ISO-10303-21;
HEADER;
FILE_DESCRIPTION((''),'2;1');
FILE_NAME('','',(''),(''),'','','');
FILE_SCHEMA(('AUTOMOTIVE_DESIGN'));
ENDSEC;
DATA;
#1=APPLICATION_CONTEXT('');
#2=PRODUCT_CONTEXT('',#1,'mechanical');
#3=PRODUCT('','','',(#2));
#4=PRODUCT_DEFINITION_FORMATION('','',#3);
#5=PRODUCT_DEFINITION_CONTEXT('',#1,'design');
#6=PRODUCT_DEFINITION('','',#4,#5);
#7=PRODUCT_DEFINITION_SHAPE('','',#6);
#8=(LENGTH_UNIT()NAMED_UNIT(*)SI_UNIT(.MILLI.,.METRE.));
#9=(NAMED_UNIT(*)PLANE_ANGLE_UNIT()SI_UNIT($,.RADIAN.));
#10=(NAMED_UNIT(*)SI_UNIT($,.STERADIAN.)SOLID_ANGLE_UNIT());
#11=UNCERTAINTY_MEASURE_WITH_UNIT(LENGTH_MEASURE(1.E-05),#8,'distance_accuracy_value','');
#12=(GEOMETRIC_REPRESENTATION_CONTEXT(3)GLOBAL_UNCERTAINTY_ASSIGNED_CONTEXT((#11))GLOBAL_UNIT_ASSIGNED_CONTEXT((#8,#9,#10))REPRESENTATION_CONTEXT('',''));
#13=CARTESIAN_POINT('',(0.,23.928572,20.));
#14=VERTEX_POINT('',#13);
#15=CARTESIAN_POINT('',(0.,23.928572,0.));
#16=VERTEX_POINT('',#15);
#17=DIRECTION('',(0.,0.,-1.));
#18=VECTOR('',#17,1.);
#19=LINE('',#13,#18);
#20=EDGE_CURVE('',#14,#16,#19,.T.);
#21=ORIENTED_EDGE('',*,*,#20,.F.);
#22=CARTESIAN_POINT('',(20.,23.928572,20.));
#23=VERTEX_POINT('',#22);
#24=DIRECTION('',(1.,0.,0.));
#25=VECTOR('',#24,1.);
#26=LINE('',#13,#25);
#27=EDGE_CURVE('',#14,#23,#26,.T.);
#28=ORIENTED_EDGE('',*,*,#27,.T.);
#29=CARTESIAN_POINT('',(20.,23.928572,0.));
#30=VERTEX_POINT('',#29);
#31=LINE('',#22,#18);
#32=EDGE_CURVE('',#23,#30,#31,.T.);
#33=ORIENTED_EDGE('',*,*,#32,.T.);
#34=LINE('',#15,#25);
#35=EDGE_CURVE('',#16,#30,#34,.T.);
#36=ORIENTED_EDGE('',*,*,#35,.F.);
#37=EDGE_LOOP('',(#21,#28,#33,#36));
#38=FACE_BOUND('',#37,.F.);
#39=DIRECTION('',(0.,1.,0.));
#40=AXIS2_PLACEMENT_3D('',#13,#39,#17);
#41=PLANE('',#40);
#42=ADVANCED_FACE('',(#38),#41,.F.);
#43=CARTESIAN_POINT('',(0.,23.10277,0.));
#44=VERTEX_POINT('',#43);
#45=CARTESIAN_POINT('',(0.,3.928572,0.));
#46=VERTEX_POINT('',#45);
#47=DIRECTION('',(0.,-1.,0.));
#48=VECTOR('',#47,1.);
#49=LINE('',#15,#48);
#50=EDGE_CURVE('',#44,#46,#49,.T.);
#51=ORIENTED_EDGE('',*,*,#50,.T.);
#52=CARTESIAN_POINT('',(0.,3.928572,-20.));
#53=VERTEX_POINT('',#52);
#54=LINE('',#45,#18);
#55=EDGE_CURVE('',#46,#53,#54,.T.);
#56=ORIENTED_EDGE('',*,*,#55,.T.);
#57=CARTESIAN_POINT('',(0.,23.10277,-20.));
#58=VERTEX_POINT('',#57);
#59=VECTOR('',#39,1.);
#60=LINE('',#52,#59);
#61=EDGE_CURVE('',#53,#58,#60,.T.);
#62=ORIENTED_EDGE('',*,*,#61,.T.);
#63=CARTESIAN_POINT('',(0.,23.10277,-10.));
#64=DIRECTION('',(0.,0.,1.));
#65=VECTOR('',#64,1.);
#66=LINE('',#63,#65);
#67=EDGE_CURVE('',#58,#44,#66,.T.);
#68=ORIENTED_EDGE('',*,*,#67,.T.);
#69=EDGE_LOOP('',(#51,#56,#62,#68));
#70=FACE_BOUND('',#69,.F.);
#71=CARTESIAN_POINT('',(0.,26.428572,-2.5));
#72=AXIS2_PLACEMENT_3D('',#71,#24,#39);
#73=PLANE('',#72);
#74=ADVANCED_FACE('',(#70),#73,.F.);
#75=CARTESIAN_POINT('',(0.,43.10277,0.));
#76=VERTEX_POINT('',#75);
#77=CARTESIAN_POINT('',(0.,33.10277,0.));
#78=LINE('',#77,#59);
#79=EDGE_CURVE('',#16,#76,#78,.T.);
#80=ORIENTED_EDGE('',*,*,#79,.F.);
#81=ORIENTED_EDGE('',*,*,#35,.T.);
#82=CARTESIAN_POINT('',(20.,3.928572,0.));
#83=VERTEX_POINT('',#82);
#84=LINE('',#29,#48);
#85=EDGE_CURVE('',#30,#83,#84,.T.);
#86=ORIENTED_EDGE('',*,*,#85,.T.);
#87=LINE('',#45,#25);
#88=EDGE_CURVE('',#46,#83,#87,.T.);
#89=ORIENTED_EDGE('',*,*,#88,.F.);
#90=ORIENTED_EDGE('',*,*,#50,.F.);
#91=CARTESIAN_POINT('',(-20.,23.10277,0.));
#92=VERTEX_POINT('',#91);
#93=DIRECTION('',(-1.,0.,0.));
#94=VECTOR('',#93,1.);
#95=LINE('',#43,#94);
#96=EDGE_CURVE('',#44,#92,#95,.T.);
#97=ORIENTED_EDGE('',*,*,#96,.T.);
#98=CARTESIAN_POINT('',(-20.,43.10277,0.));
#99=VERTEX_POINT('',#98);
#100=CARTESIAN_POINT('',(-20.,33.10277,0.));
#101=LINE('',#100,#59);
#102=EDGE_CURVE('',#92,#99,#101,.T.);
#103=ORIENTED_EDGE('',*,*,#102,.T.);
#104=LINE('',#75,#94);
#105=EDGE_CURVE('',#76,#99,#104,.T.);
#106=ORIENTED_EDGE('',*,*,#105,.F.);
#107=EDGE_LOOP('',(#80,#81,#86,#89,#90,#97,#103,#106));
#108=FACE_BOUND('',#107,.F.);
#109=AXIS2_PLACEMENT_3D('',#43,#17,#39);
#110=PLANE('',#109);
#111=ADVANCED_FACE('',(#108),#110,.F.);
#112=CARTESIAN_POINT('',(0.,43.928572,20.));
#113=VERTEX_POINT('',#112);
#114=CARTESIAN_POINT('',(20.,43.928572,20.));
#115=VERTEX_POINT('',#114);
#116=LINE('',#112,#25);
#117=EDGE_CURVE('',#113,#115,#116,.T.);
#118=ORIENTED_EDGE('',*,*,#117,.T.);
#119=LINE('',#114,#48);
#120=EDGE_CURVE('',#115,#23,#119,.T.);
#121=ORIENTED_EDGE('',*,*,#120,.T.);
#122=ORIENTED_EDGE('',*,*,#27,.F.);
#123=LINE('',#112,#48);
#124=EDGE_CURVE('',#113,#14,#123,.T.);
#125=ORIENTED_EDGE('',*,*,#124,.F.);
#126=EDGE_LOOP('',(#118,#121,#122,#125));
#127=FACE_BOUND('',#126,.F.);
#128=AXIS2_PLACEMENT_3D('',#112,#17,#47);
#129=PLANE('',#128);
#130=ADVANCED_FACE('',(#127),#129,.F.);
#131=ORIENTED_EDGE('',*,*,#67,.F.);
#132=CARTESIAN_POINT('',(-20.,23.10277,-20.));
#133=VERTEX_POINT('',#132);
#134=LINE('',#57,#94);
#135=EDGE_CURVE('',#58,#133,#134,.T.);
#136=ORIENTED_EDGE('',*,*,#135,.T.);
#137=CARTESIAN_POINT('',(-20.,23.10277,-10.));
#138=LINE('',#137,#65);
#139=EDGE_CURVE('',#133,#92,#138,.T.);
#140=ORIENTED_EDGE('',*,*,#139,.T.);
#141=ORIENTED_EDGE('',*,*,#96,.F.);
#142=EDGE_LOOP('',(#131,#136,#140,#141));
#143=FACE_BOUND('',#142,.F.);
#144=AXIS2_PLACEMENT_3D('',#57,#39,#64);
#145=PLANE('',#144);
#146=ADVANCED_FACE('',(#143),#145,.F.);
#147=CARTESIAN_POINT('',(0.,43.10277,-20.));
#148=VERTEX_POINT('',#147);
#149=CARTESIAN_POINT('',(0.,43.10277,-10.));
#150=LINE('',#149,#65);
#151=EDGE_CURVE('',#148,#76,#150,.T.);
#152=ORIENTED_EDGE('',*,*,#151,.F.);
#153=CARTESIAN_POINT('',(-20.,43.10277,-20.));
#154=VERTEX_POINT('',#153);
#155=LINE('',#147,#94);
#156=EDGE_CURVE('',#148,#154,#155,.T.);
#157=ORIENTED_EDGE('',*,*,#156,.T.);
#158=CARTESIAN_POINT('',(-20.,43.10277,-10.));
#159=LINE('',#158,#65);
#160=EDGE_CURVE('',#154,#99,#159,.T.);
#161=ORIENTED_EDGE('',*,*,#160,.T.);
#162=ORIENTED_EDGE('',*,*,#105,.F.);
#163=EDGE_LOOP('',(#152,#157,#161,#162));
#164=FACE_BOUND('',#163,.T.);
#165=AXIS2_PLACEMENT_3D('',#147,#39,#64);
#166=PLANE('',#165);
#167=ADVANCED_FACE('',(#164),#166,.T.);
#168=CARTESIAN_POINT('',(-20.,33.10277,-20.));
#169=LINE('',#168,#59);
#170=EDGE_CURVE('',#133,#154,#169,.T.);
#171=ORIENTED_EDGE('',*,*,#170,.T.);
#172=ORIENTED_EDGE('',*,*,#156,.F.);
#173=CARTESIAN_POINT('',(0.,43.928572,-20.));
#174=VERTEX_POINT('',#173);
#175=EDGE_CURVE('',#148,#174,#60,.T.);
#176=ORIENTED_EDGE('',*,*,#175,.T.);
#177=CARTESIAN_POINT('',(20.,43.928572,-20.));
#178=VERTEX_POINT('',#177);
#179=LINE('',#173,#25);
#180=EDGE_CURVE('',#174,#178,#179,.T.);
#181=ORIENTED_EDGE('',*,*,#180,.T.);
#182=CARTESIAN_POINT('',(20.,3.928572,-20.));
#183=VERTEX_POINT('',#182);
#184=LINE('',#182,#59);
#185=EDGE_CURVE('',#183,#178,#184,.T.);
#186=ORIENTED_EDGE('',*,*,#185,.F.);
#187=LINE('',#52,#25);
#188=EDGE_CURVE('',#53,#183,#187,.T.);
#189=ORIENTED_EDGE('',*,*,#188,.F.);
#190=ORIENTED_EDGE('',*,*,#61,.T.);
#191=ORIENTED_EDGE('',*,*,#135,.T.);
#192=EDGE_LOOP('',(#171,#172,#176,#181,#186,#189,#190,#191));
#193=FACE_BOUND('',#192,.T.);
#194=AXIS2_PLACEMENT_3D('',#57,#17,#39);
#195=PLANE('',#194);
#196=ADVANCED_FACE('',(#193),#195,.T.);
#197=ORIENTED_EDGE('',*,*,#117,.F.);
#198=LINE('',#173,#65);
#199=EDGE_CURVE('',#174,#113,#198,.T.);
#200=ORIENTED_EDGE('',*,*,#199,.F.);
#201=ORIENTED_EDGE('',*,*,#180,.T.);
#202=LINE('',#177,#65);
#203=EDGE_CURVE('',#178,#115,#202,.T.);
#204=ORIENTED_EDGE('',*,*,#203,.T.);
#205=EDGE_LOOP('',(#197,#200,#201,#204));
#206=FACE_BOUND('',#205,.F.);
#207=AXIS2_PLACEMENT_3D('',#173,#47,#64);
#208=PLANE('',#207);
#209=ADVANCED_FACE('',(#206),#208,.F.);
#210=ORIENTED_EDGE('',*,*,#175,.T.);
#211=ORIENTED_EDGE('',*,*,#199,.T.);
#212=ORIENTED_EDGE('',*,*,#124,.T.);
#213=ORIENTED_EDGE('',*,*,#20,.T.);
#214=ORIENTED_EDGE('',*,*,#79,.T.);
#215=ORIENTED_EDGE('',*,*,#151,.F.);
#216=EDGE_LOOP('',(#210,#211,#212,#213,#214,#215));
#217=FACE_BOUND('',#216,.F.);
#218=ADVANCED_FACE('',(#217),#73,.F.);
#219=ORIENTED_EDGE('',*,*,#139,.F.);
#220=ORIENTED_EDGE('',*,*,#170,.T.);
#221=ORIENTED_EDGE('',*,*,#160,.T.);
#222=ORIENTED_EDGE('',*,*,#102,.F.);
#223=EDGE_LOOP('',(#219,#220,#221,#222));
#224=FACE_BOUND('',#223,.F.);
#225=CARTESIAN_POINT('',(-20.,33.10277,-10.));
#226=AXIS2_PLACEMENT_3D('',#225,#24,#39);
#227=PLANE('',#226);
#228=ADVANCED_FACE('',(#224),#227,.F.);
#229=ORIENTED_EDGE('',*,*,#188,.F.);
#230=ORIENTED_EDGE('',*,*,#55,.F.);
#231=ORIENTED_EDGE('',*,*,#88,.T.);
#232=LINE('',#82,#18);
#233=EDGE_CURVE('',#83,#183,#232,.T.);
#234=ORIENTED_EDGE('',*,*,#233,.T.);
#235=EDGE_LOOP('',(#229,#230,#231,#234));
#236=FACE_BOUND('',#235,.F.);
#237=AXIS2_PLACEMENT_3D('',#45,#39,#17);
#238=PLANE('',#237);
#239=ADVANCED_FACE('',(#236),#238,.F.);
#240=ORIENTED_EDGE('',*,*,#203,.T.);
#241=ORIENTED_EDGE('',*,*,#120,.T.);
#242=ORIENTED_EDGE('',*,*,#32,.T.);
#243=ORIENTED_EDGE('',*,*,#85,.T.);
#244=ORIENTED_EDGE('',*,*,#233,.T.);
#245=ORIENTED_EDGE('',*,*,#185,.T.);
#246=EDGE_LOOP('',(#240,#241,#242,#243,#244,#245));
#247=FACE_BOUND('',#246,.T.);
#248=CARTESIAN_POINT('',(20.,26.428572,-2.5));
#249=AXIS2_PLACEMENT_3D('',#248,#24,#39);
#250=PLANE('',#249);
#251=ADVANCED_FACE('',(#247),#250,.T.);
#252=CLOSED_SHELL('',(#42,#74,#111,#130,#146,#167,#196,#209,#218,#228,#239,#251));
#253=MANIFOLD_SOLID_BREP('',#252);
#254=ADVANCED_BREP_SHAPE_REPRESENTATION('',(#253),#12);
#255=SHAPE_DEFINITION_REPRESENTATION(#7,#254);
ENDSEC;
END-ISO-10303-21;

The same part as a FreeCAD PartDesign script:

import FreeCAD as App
import Part
import Sketcher

V = App.Vector

doc = App.newDocument("Part")
params = doc.addObject("Spreadsheet::Sheet", "Params")
for row, (alias, value) in enumerate([
    ("sketch1_width", "20 mm"),
    ("pad1_length", "20 mm"),
    ("sketch2_width", "20 mm"),
    ("pad2_length", "20 mm"),
], start=1):
    params.set(f"A{row}", alias)
    params.set(f"B{row}", "=" + value)
    params.setAlias(f"B{row}", alias)

body = doc.addObject("PartDesign::Body", "Body")

sketch1 = body.newObject("Sketcher::SketchObject", "Sketch")
sketch1.AttachmentSupport = (doc.getObject("YZ_Plane"), [""])
sketch1.MapMode = "FlatFace"
sketch1.addGeometry([
    Part.LineSegment(V(43.928572, -20, 0), V(43.928572, 20, 0)),
    Part.LineSegment(V(43.928572, 20, 0), V(23.928572, 20, 0)),
    Part.LineSegment(V(23.928572, 20, 0), V(23.928572, 0, 0)),
    Part.LineSegment(V(23.928572, 0, 0), V(3.928572, 0, 0)),
    Part.LineSegment(V(3.928572, 0, 0), V(3.928572, -20, 0)),
    Part.LineSegment(V(3.928572, -20, 0), V(43.928572, -20, 0)),
], False)
sketch1.addConstraint([
    Sketcher.Constraint("Coincident", 0, 2, 1, 1),
    Sketcher.Constraint("Coincident", 1, 2, 2, 1),
    Sketcher.Constraint("Coincident", 2, 2, 3, 1),
    Sketcher.Constraint("Coincident", 3, 2, 4, 1),
    Sketcher.Constraint("Coincident", 4, 2, 5, 1),
    Sketcher.Constraint("Coincident", 5, 2, 0, 1),
    Sketcher.Constraint("Vertical", 0),
    Sketcher.Constraint("Horizontal", 1),
    Sketcher.Constraint("Vertical", 2),
    Sketcher.Constraint("Horizontal", 3),
    Sketcher.Constraint("Vertical", 4),
    Sketcher.Constraint("Horizontal", 5),
    Sketcher.Constraint("PointOnObject", 2, 2, -1),
    Sketcher.Constraint("Equal", 1, 3),
    Sketcher.Constraint("Equal", 5, 0),
    Sketcher.Constraint("Equal", 3, 2),
    Sketcher.Constraint("DistanceX", 1, 2, 1, 1, 20.0),
    Sketcher.Constraint("DistanceX", -1, 1, 1, 2, 23.928572),
])
sketch1.setExpression("Constraints[16]", "Params.sketch1_width")
pad1 = body.newObject("PartDesign::Pad", "Pad")
pad1.Profile = sketch1
pad1.setExpression("Length", "Params.pad1_length")

sketch2 = body.newObject("Sketcher::SketchObject", "Sketch001")
sketch2.AttachmentSupport = (doc.getObject("YZ_Plane"), [""])
sketch2.MapMode = "FlatFace"
sketch2.addGeometry([
    Part.LineSegment(V(23.10277, 0, 0), V(23.10277, -20, 0)),
    Part.LineSegment(V(23.10277, -20, 0), V(43.10277, -20, 0)),
    Part.LineSegment(V(43.10277, -20, 0), V(43.10277, 0, 0)),
    Part.LineSegment(V(43.10277, 0, 0), V(23.10277, 0, 0)),
], False)
sketch2.addConstraint([
    Sketcher.Constraint("Coincident", 0, 2, 1, 1),
    Sketcher.Constraint("Coincident", 1, 2, 2, 1),
    Sketcher.Constraint("Coincident", 2, 2, 3, 1),
    Sketcher.Constraint("Coincident", 3, 2, 0, 1),
    Sketcher.Constraint("Vertical", 0),
    Sketcher.Constraint("Horizontal", 1),
    Sketcher.Constraint("Vertical", 2),
    Sketcher.Constraint("Horizontal", 3),
    Sketcher.Constraint("PointOnObject", 2, 2, -1),
    Sketcher.Constraint("Equal", 3, 0),
    Sketcher.Constraint("DistanceX", 1, 1, 1, 2, 20.0),
    Sketcher.Constraint("DistanceX", -1, 1, 0, 2, 23.10277),
])
sketch2.setExpression("Constraints[10]", "Params.sketch2_width")
pad2 = body.newObject("PartDesign::Pad", "Pad001")
pad2.Profile = sketch2
pad2.setExpression("Length", "Params.pad2_length")
pad2.Reversed = True

doc.recompute()
